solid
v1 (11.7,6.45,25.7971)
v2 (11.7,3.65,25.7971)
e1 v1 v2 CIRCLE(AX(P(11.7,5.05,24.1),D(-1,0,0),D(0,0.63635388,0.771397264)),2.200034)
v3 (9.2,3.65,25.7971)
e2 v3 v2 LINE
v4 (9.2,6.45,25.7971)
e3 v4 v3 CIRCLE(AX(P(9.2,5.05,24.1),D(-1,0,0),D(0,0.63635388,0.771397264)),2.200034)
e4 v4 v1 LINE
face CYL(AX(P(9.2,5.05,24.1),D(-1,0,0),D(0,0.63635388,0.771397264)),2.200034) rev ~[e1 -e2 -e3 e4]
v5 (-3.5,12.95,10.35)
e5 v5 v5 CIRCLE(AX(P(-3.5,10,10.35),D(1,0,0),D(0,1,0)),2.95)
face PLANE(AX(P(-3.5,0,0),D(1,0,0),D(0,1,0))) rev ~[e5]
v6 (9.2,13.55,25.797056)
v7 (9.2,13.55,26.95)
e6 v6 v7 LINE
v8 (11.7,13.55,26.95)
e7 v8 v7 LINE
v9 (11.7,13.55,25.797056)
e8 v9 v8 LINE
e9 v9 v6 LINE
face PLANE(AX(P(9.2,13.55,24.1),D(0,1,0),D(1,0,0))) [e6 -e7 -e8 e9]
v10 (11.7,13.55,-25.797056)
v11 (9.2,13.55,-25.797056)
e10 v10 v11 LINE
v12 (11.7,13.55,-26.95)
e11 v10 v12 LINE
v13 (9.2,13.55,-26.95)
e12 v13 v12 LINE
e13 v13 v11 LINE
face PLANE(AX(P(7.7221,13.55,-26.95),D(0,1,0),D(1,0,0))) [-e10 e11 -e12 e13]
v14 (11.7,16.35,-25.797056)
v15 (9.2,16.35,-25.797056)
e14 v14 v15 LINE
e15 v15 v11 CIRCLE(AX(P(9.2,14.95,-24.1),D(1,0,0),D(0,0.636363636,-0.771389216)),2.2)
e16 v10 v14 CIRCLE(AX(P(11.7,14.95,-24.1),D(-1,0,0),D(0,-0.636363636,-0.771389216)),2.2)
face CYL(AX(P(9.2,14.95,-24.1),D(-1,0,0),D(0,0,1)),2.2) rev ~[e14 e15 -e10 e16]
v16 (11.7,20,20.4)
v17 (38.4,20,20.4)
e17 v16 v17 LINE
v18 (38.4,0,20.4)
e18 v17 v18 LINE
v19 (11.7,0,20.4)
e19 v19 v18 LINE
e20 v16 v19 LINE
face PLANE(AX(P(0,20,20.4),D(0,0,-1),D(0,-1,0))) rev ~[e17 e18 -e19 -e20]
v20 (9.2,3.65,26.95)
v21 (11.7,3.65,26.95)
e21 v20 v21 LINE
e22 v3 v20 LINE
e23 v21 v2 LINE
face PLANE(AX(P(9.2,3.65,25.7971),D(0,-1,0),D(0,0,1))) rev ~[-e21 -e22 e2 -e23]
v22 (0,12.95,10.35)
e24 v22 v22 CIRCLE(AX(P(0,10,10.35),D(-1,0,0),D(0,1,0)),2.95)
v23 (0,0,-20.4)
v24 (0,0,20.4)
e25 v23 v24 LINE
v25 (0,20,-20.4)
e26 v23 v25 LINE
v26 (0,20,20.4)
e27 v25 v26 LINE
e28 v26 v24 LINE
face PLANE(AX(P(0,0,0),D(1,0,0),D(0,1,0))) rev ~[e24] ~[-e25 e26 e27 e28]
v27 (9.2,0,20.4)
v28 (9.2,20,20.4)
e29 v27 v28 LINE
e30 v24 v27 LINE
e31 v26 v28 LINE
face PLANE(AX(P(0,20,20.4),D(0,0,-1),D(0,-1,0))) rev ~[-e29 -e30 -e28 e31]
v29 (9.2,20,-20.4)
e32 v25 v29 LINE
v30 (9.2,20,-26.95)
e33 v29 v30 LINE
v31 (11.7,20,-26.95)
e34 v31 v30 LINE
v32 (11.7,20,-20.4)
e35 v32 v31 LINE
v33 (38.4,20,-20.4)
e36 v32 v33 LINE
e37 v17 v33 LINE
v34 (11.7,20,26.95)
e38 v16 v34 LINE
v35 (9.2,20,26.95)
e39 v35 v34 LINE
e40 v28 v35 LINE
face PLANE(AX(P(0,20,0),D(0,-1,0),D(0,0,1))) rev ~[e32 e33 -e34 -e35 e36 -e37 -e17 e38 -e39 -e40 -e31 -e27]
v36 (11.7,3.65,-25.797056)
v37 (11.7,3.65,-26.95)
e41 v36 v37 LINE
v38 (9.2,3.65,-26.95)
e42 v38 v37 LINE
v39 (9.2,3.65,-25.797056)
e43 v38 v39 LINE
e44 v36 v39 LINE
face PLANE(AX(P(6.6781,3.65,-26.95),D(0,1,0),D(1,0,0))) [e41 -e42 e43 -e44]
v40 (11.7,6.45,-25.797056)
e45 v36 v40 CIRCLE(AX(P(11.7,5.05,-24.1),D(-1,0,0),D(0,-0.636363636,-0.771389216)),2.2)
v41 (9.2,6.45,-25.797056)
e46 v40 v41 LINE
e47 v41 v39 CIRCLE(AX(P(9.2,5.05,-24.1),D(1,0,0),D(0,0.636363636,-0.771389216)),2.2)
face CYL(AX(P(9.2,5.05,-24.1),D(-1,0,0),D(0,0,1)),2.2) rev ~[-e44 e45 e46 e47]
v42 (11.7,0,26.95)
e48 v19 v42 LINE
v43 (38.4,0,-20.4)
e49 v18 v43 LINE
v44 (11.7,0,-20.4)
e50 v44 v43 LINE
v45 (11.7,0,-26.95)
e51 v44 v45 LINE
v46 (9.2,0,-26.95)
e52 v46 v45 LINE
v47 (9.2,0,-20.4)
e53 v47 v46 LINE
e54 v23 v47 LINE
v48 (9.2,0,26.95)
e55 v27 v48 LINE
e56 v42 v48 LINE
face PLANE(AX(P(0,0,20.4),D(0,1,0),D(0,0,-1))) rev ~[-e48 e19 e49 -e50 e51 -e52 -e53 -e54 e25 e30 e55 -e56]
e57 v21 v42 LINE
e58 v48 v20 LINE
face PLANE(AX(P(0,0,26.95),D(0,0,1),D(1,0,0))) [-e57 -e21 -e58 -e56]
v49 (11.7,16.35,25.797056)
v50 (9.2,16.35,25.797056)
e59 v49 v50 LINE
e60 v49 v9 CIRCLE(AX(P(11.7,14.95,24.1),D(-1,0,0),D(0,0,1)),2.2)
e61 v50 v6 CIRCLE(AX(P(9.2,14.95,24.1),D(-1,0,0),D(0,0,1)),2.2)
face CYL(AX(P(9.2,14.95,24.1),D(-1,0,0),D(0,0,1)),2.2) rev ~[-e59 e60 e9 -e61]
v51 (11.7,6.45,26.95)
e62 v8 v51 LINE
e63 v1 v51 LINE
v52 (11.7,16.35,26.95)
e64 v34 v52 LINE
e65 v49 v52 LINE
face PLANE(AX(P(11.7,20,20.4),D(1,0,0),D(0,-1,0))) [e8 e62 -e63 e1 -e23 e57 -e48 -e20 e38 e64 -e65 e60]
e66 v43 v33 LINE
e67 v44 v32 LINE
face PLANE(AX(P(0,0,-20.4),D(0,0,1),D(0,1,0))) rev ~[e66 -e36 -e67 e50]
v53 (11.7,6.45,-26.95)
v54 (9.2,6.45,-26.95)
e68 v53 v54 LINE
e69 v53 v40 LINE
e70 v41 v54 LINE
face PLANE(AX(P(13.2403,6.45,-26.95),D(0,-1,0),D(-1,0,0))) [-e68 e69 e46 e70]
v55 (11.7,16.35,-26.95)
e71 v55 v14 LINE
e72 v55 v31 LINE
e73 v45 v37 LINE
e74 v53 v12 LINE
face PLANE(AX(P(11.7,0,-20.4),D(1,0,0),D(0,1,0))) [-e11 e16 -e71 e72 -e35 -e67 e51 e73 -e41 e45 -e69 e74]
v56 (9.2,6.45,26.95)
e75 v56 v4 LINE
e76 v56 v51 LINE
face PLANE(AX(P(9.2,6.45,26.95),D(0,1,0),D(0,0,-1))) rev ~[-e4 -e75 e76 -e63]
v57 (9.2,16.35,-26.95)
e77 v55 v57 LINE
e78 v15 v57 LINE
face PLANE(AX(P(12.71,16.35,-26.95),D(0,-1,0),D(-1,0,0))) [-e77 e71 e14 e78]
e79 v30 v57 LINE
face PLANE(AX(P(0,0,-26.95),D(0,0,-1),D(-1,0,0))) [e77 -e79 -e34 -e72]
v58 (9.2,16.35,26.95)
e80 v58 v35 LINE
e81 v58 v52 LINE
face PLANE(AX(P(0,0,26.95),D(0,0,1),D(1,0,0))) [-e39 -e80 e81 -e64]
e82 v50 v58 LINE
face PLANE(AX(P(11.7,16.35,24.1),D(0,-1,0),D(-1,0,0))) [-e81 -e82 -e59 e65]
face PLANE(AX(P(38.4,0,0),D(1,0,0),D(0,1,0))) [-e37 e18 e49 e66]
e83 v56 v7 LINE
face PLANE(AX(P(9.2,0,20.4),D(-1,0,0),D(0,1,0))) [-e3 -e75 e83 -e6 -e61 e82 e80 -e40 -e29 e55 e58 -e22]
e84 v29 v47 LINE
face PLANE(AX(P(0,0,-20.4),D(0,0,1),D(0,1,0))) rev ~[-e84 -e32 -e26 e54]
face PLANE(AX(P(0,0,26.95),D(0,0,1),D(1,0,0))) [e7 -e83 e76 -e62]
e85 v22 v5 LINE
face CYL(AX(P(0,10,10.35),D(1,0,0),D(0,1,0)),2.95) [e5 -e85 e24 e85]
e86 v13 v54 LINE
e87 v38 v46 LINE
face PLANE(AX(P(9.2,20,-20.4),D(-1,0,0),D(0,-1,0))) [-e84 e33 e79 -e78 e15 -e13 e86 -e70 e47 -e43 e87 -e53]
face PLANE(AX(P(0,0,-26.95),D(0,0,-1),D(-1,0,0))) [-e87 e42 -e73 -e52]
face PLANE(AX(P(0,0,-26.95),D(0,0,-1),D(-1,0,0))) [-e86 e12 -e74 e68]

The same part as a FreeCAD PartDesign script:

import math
import FreeCAD as App
import Part
import Sketcher
from FreeCAD import Vector
Q = App.Units.Quantity


def add_polygon(sketch, points):
    """Adds a closed chain of lines whose ends are joined by coincident constraints."""
    first, n = sketch.GeometryCount, len(points)
    for a, b in zip(points, points[1:] + points[:1]):
        sketch.addGeometry(Part.LineSegment(App.Vector(*a, 0), App.Vector(*b, 0)), False)
    for i in range(n):
        sketch.addConstraint(Sketcher.Constraint("Coincident", first + i, 2, first + (i + 1) % n, 1))

doc = App.newDocument("Part")
body = doc.addObject("PartDesign::Body", "Body")

# Sketch on YZ plane
sketch1 = body.newObject("Sketcher::SketchObject", "Sketch")
sketch1.AttachmentSupport = (doc.getObject("YZ_Plane"), [""])
sketch1.MapMode = "FlatFace"
add_polygon(sketch1, [(20, 20), (0, 20), (0, -20), (20, -20)])  # lines 0-3
sketch1.addConstraint([
    Sketcher.Constraint("Horizontal", 0),
    Sketcher.Constraint("Vertical", 1),
    Sketcher.Constraint("Horizontal", 2),
    Sketcher.Constraint("Vertical", 3),
    Sketcher.Constraint("Symmetric", 0, 2, 1, 2, -1, 1),
    Sketcher.Constraint("DistanceX", 0, 2, 0, 1, Q("20 mm")),
    Sketcher.Constraint("DistanceY", 1, 2, 1, 1, Q("40.8 mm")),
])
pad1 = body.newObject("PartDesign::Pad", "Pad")
pad1.Profile = sketch1
pad1.Length = 38.4

# Sketch on YZ plane
sketch2 = body.newObject("Sketcher::SketchObject", "Sketch001")
sketch2.AttachmentSupport = (doc.getObject("YZ_Plane"), [""])
sketch2.MapMode = "FlatFace"
sketch2.addGeometry(Part.Circle(Vector(10, 10.3, 0), Vector(0, 0, 1), 3), False)
sketch2.addConstraint([
    Sketcher.Constraint("Diameter", 0, Q("5.9 mm")),
    Sketcher.Constraint("DistanceX", -1, 1, 0, 3, Q("10 mm")),
    Sketcher.Constraint("DistanceY", -1, 1, 0, 3, Q("10.35 mm")),
])
pad2 = body.newObject("PartDesign::Pad", "Pad001")
pad2.Profile = sketch2
pad2.Length = 3.5
pad2.Reversed = True

# Sketch on XY plane
sketch3 = body.newObject("Sketcher::SketchObject", "Sketch002")
sketch3.AttachmentSupport = (doc.getObject("XY_Plane"), [""])
sketch3.MapMode = "FlatFace"
sketch3.AttachmentOffset = App.Placement(Vector(0, 0, 20.4), App.Rotation())
add_polygon(sketch3, [(11.7, 20), (9.2, 20), (9.2, 0), (11.7, 0)])  # lines 0-3
sketch3.addConstraint([
    Sketcher.Constraint("Horizontal", 0),
    Sketcher.Constraint("Vertical", 1),
    Sketcher.Constraint("Horizontal", 2),
    Sketcher.Constraint("Vertical", 3),
    Sketcher.Constraint("PointOnObject", 1, 2, -1),
    Sketcher.Constraint("DistanceX", 0, 2, 0, 1, Q("2.5 mm")),
    Sketcher.Constraint("DistanceX", -1, 1, 0, 2, Q("9.2 mm")),
    Sketcher.Constraint("DistanceY", 1, 2, 1, 1, Q("20 mm")),
])
pad3 = body.newObject("PartDesign::Pad", "Pad002")
pad3.Profile = sketch3
pad3.Length = 6.55

# Sketch on XY plane
sketch4 = body.newObject("Sketcher::SketchObject", "Sketch003")
sketch4.AttachmentSupport = (doc.getObject("XY_Plane"), [""])
sketch4.MapMode = "FlatFace"
sketch4.AttachmentOffset = App.Placement(Vector(0, 0, -20.4), App.Rotation())
add_polygon(sketch4, [(9.2, 20), (11.7, 20), (11.7, 0), (9.2, 0)])  # lines 0-3
sketch4.addConstraint([
    Sketcher.Constraint("Horizontal", 0),
    Sketcher.Constraint("Vertical", 1),
    Sketcher.Constraint("Horizontal", 2),
    Sketcher.Constraint("Vertical", 3),
    Sketcher.Constraint("PointOnObject", 1, 2, -1),
    Sketcher.Constraint("DistanceX", 0, 1, 0, 2, Q("2.5 mm")),
    Sketcher.Constraint("DistanceX", -1, 1, 2, 2, Q("9.2 mm")),
    Sketcher.Constraint("DistanceY", 1, 2, 1, 1, Q("20 mm")),
])
pad4 = body.newObject("PartDesign::Pad", "Pad003")
pad4.Profile = sketch4
pad4.Length = 6.55
pad4.Reversed = True

# Sketch on YZ plane
sketch5 = body.newObject("Sketcher::SketchObject", "Sketch004")
sketch5.AttachmentSupport = (doc.getObject("YZ_Plane"), [""])
sketch5.MapMode = "FlatFace"
sketch5.AttachmentOffset = App.Placement(Vector(0, 0, 9.2), App.Rotation())
sketch5.addGeometry([
    Part.LineSegment(Vector(3.6, 26.9, 0), Vector(6.5, 26.9, 0)),  # 0
    Part.LineSegment(Vector(6.5, 26.9, 0), Vector(6.5, 25.8, 0)),  # 1
    Part.ArcOfCircle(Part.Circle(Vector(5, 24.1, 0), Vector(0, 0, 1), 2.2), math.radians(130), math.radians(410)),  # 2
    Part.LineSegment(Vector(3.6, 25.8, 0), Vector(3.6, 26.9, 0)),  # 3
    Part.Circle(Vector(14.9, 24.1, 0), Vector(0, 0, 1), 2.2),  # 4
    Part.Circle(Vector(14.9, -24.1, 0), Vector(0, 0, 1), 2.2),  # 5
    Part.Circle(Vector(5, -24.1, 0), Vector(0, 0, 1), 2.2),  # 6
], False)
sketch5.addConstraint([
    Sketcher.Constraint("Coincident", 0, 2, 1, 1),
    Sketcher.Constraint("Coincident", 1, 2, 2, 2),
    Sketcher.Constraint("Coincident", 2, 1, 3, 1),
    Sketcher.Constraint("Coincident", 3, 2, 0, 1),
    Sketcher.Constraint("Horizontal", 0),
    Sketcher.Constraint("Vertical", 1),
    Sketcher.Constraint("Vertical", 3),
    Sketcher.Constraint("Equal", 2, 4),
    Sketcher.Constraint("Equal", 4, 5),
    Sketcher.Constraint("Equal", 5, 6),
    Sketcher.Constraint("Symmetric", 4, 3, 5, 3, -1),
    Sketcher.Constraint("Symmetric", 2, 3, 6, 3, -1),
    Sketcher.Constraint("Horizontal", 2, 3, 4, 3),
    Sketcher.Constraint("Horizontal", 1, 2, 2, 1),
    Sketcher.Constraint("Diameter", 4, Q("4.4 mm")),
    Sketcher.Constraint("DistanceX", 0, 1, 0, 2, Q("2.8 mm")),
    Sketcher.Constraint("DistanceY", -1, 1, 2, 3, Q("24.1 mm")),
    Sketcher.Constraint("DistanceX", 2, 3, 4, 3, Q("9.9 mm")),
    Sketcher.Constraint("DistanceY", 1, 2, 1, 1, Q("1.153 mm")),
    Sketcher.Constraint("DistanceX", -1, 1, 2, 3, Q("5.05 mm")),
])
pocket1 = body.newObject("PartDesign::Pocket", "Pocket")
pocket1.Profile = sketch5
pocket1.Length = 6.55
pocket1.Reversed = True

# Sketch on XY plane
sketch6 = body.newObject("Sketcher::SketchObject", "Sketch005")
sketch6.AttachmentSupport = (doc.getObject("XY_Plane"), [""])
sketch6.MapMode = "FlatFace"
sketch6.AttachmentOffset = App.Placement(Vector(0, 0, 24.1), App.Rotation())
add_polygon(sketch6, [(11.7, 13.6), (9.2, 13.6), (9.2, 16.4), (11.7, 16.4)])  # lines 0-3
sketch6.addConstraint([
    Sketcher.Constraint("Horizontal", 0),
    Sketcher.Constraint("Vertical", 1),
    Sketcher.Constraint("Horizontal", 2),
    Sketcher.Constraint("Vertical", 3),
    Sketcher.Constraint("DistanceY", 1, 1, 1, 2, Q("2.8 mm")),
    Sketcher.Constraint("DistanceX", 0, 2, 0, 1, Q("2.5 mm")),
    Sketcher.Constraint("DistanceX", -1, 1, 0, 2, Q("9.2 mm")),
    Sketcher.Constraint("DistanceY", -1, 1, 0, 2, Q("13.55 mm")),
])
pocket2 = body.newObject("PartDesign::Pocket", "Pocket001")
pocket2.Profile = sketch6
pocket2.Length = 6.55
pocket2.Reversed = True

# Sketch on XY plane
sketch7 = body.newObject("Sketcher::SketchObject", "Sketch006")
sketch7.AttachmentSupport = (doc.getObject("XY_Plane"), [""])
sketch7.MapMode = "FlatFace"
sketch7.AttachmentOffset = App.Placement(Vector(0, 0, -26.95), App.Rotation())
add_polygon(sketch7, [(7.7, 16.4), (12.7, 16.4), (12.7, 13.6), (7.7, 13.6)])  # lines 0-3
sketch7.addConstraint([
    Sketcher.Constraint("Horizontal", 0),
    Sketcher.Constraint("Vertical", 1),
    Sketcher.Constraint("Horizontal", 2),
    Sketcher.Constraint("Vertical", 3),
    Sketcher.Constraint("DistanceY", 1, 2, 1, 1, Q("2.8 mm")),
    Sketcher.Constraint("DistanceX", 0, 1, 0, 2, Q("4.988 mm")),
    Sketcher.Constraint("DistanceX", -1, 1, 0, 2, Q("12.71 mm")),
    Sketcher.Constraint("DistanceY", -1, 1, 0, 2, Q("16.35 mm")),
])
pocket3 = body.newObject("PartDesign::Pocket", "Pocket002")
pocket3.Profile = sketch7
pocket3.Length = 1.1529
pocket3.Reversed = True

# Sketch on XY plane
sketch8 = body.newObject("Sketcher::SketchObject", "Sketch007")
sketch8.AttachmentSupport = (doc.getObject("XY_Plane"), [""])
sketch8.MapMode = "FlatFace"
sketch8.AttachmentOffset = App.Placement(Vector(0, 0, -26.95), App.Rotation())
add_polygon(sketch8, [(6.7, 6.5), (13.2, 6.5), (13.2, 3.6), (6.7, 3.6)])  # lines 0-3
sketch8.addConstraint([
    Sketcher.Constraint("Horizontal", 0),
    Sketcher.Constraint("Vertical", 1),
    Sketcher.Constraint("Horizontal", 2),
    Sketcher.Constraint("Vertical", 3),
    Sketcher.Constraint("DistanceY", 1, 2, 1, 1, Q("2.8 mm")),
    Sketcher.Constraint("DistanceY", -1, 1, 0, 2, Q("6.45 mm")),
    Sketcher.Constraint("DistanceX", 0, 1, 0, 2, Q("6.5622 mm")),
    Sketcher.Constraint("DistanceX", -1, 1, 2, 2, Q("6.678 mm")),
])
pocket4 = body.newObject("PartDesign::Pocket", "Pocket003")
pocket4.Profile = sketch8
pocket4.Length = 1.1529
pocket4.Reversed = True

doc.recompute()
